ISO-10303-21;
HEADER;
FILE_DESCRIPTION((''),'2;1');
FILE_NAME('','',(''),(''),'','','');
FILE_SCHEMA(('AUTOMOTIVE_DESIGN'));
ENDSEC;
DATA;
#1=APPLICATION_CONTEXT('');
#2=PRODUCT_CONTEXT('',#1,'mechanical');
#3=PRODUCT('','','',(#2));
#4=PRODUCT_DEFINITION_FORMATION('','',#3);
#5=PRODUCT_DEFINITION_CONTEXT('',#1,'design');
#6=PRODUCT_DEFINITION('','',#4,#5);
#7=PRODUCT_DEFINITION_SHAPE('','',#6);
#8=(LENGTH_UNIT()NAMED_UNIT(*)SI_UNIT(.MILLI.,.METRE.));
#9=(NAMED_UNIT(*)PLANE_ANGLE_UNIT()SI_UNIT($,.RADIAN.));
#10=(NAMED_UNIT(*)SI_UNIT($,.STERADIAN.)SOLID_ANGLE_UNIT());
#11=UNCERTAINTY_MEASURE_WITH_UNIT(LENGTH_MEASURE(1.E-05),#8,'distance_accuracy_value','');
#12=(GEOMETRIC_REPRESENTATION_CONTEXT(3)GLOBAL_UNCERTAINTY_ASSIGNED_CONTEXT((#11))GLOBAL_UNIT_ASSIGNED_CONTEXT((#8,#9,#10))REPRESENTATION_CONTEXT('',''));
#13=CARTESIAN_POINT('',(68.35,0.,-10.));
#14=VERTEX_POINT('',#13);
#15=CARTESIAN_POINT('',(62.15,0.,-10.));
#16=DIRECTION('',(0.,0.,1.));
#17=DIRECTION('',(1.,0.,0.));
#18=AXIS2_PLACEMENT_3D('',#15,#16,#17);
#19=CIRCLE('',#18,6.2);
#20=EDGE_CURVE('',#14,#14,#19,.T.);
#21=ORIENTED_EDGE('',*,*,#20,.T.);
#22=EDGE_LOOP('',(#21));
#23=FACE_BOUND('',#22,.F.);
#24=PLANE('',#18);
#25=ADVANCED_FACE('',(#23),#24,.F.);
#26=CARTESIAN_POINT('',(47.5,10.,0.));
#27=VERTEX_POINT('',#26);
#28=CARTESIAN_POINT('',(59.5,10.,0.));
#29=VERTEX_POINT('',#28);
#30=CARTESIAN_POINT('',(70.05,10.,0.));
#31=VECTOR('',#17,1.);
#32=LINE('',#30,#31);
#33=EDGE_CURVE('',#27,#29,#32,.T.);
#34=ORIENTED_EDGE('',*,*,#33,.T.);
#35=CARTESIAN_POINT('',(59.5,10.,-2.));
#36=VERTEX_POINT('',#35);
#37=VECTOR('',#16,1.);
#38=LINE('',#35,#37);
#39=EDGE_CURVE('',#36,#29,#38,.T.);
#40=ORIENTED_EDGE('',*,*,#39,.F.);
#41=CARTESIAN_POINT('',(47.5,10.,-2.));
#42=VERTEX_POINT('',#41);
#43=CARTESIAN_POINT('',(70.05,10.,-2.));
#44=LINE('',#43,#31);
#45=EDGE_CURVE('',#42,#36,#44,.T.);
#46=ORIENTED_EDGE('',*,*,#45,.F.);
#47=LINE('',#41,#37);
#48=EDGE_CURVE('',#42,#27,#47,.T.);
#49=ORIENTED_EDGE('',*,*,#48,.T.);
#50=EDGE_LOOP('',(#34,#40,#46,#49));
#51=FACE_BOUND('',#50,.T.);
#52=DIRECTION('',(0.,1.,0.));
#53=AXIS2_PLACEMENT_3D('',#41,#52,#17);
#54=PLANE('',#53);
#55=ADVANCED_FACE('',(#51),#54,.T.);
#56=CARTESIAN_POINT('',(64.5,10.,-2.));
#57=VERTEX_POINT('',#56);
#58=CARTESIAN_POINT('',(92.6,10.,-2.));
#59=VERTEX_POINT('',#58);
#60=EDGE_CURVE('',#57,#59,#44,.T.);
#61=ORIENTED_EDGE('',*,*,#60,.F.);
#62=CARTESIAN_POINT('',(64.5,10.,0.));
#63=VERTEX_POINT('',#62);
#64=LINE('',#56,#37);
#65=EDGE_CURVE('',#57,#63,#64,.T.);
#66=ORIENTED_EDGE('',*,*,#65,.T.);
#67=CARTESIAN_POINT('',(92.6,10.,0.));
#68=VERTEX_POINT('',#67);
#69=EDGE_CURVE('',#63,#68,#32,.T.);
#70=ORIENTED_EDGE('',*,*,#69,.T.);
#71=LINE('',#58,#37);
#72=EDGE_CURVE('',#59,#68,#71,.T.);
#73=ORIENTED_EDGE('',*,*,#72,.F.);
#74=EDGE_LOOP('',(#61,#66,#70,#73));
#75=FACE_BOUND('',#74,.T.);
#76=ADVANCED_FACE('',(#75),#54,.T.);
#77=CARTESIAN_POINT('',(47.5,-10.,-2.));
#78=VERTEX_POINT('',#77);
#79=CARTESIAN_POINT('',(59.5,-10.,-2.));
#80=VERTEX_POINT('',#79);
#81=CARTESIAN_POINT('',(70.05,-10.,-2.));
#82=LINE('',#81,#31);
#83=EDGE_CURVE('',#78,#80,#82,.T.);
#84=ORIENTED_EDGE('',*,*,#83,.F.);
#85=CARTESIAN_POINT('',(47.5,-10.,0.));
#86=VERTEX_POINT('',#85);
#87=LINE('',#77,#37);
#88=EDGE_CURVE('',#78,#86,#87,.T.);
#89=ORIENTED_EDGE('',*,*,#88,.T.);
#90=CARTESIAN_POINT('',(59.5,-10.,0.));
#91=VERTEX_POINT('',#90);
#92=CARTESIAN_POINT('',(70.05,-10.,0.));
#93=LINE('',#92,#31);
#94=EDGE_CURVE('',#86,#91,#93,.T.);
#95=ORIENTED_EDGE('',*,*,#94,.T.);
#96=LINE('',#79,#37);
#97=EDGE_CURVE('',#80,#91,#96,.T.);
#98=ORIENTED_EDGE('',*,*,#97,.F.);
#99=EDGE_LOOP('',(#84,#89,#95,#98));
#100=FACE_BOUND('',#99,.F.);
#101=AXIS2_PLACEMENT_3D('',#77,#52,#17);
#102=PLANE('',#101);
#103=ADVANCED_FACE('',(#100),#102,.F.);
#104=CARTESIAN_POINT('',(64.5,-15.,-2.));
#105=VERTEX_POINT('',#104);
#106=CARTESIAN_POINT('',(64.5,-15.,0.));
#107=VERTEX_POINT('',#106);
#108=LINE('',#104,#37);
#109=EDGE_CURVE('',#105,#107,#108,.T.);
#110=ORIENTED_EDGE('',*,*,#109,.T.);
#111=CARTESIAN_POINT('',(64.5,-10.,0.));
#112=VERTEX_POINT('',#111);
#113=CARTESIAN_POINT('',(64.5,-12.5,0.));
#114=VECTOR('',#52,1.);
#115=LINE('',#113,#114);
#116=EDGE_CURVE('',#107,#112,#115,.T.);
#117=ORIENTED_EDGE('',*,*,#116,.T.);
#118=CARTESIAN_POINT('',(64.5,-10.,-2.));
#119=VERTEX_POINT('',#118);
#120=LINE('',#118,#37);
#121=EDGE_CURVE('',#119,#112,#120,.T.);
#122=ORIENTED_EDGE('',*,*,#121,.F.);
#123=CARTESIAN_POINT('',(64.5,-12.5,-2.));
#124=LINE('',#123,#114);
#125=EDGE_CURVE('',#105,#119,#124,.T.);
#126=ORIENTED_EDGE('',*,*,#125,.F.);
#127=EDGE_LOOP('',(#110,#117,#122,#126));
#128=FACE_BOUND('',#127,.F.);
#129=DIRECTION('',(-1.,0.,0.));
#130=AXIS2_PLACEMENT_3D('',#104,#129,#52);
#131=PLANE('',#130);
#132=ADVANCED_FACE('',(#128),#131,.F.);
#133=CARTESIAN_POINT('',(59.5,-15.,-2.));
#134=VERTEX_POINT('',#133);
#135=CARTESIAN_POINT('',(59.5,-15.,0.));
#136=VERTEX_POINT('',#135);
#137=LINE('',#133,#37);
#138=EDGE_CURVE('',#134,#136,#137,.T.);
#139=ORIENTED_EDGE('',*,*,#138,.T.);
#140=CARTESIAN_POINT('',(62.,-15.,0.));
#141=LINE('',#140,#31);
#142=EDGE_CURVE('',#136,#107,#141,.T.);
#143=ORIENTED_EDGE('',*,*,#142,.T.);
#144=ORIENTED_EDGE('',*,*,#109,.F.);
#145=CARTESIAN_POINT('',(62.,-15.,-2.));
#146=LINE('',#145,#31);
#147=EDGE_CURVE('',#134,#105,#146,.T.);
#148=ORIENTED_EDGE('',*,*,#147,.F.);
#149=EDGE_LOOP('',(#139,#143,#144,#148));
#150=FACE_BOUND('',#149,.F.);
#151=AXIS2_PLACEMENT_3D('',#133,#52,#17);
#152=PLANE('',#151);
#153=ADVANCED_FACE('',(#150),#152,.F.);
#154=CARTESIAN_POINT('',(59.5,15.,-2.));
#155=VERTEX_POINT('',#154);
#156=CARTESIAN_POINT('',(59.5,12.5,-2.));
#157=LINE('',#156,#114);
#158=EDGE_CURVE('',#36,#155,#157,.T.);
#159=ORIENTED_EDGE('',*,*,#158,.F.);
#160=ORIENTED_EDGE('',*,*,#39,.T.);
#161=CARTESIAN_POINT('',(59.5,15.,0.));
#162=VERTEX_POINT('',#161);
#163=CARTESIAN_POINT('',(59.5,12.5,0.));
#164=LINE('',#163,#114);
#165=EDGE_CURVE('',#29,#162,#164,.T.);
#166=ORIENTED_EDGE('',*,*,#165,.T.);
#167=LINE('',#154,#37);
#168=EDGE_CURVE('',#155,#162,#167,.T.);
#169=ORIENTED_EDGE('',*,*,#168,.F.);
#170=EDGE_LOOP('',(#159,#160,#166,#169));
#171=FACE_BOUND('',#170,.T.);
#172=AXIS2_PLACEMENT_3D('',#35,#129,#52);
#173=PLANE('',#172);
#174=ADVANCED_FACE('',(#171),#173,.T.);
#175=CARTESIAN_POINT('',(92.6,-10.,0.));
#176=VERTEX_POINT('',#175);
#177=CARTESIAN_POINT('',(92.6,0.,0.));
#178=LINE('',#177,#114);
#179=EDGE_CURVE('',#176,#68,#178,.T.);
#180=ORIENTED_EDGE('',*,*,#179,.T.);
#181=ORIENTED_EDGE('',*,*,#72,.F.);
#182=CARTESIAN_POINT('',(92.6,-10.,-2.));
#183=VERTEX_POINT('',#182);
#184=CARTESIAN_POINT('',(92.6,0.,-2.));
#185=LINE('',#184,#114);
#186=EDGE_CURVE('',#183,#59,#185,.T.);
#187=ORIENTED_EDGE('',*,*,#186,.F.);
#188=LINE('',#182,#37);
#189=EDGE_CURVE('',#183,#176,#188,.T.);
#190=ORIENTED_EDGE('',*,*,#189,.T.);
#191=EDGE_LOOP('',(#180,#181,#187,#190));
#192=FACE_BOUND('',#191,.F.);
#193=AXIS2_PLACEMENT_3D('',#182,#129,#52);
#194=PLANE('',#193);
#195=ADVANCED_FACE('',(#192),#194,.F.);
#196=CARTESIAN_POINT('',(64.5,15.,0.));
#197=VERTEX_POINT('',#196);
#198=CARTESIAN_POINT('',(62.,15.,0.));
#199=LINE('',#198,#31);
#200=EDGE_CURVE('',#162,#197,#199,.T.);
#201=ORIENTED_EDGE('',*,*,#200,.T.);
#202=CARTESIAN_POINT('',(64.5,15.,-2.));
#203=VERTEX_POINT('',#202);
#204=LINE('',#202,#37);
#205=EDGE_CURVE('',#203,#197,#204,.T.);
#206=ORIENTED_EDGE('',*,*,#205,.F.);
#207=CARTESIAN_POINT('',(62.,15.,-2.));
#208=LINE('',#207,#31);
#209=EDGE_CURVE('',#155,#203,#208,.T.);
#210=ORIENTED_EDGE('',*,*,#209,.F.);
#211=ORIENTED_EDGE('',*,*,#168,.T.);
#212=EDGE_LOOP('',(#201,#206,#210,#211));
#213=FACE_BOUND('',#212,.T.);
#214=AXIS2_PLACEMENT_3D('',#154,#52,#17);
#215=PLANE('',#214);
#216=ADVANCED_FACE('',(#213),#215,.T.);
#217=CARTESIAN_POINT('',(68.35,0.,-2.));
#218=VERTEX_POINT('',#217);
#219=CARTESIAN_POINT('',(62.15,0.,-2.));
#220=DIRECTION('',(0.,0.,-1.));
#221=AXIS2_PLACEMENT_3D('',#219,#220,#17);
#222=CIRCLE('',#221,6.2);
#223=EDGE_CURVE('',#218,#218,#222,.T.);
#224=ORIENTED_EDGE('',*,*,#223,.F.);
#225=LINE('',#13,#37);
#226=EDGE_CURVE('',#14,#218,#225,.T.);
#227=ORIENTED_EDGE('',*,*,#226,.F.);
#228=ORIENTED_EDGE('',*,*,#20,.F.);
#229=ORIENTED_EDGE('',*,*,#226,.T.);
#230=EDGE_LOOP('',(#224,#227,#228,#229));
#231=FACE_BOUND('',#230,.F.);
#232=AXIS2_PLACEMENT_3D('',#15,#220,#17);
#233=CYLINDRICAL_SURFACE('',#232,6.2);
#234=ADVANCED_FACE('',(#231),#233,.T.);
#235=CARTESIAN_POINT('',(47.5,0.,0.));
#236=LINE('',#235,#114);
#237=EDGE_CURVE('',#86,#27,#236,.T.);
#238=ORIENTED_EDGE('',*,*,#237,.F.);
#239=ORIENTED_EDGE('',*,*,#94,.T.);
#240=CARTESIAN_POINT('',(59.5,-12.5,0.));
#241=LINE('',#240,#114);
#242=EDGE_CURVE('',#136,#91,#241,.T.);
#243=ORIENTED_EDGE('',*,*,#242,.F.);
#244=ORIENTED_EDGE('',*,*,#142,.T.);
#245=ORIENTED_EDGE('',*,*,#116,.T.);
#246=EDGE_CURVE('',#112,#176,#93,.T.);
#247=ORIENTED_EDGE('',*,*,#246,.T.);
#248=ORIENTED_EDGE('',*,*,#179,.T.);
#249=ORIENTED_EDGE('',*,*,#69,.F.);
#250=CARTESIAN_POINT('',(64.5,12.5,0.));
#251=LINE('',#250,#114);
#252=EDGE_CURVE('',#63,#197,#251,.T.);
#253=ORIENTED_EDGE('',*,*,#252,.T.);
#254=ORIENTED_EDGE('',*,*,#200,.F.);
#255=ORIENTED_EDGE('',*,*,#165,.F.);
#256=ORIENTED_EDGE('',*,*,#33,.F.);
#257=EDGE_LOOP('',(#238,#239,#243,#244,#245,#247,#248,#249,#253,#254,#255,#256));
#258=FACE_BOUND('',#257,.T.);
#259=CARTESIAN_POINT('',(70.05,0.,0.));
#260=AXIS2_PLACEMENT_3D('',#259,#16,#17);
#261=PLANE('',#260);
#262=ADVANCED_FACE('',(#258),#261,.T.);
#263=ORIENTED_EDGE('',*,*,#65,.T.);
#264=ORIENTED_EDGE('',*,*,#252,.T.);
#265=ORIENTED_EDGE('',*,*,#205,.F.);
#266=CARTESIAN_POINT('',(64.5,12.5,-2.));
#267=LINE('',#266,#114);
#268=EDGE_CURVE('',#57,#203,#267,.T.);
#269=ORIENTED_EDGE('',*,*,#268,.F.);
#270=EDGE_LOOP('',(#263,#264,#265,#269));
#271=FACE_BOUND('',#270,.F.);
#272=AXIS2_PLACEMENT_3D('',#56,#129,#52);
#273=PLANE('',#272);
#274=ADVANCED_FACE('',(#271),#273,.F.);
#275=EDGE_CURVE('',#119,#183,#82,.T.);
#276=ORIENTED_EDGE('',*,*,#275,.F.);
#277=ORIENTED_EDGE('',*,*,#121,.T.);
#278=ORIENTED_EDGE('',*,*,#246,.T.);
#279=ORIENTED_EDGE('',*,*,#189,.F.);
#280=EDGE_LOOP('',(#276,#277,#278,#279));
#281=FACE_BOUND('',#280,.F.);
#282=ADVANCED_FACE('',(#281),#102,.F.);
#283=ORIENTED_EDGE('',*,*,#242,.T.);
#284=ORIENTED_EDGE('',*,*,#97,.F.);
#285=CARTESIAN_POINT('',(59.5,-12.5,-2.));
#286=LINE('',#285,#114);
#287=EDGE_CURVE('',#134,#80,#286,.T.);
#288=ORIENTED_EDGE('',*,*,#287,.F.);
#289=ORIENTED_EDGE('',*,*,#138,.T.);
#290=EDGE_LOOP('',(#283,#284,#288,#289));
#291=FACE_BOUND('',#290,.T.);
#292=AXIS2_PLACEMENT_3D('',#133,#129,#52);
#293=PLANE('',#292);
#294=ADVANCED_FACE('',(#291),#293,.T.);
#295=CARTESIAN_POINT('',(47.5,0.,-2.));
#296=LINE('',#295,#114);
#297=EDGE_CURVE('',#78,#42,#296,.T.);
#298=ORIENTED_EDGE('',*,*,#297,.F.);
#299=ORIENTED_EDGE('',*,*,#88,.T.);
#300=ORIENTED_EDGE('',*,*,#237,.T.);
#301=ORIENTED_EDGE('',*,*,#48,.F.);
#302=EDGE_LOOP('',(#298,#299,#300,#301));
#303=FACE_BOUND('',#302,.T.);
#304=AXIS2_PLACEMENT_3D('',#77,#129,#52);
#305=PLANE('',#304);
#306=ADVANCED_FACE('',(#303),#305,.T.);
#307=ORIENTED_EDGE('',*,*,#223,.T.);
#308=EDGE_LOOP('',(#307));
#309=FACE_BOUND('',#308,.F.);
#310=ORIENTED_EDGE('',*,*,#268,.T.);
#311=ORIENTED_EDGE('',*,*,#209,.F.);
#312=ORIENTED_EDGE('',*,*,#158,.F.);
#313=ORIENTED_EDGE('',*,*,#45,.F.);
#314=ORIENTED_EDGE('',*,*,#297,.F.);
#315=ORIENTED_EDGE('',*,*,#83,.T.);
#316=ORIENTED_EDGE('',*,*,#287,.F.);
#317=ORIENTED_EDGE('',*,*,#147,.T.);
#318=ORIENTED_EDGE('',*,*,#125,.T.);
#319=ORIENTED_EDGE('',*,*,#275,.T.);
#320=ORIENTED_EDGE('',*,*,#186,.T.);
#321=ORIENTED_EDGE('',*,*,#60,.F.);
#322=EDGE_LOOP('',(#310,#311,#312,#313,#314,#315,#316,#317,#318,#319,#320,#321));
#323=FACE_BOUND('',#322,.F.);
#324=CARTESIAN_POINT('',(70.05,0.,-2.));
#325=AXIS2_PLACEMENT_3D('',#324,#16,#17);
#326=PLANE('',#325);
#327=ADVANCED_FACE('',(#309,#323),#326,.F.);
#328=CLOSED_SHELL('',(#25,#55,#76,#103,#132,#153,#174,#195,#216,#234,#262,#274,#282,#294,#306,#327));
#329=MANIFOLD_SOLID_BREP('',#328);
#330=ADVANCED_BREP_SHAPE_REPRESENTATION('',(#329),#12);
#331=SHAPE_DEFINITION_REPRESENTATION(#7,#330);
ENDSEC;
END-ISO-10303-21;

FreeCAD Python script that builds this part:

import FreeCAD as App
import Part
import Sketcher

V = App.Vector
Q = App.Units.Quantity


def add_polygon(sketch, points):
    """Adds a closed chain of lines whose ends are joined by coincident constraints."""
    first, n = sketch.GeometryCount, len(points)
    for a, b in zip(points, points[1:] + points[:1]):
        sketch.addGeometry(Part.LineSegment(App.Vector(*a, 0), App.Vector(*b, 0)), False)
    for i in range(n):
        sketch.addConstraint(Sketcher.Constraint("Coincident", first + i, 2, first + (i + 1) % n, 1))

doc = App.newDocument("Part")
body = doc.addObject("PartDesign::Body", "Body")

# Sketch on XY plane
sketch1 = body.newObject("Sketcher::SketchObject", "Sketch")
sketch1.AttachmentSupport = (doc.getObject("XY_Plane"), [""])
sketch1.MapMode = "FlatFace"
sketch1.AttachmentOffset = App.Placement(V(0, 0, -10), App.Rotation())
sketch1.addGeometry(Part.Circle(V(62, 0, 0), V(0, 0, 1), 6), False)
sketch1.addConstraint(Sketcher.Constraint("PointOnObject", 0, 3, -1))
sketch1.addConstraint(Sketcher.Constraint("Diameter", 0, Q("12.4 mm")))
sketch1.addConstraint(Sketcher.Constraint("DistanceX", -1, 1, 0, 3, Q("62.15 mm")))
pad1 = body.newObject("PartDesign::Pad", "Pad")
pad1.Profile = sketch1
pad1.Length = 10
body2 = doc.addObject("PartDesign::Body", "Body001")

# Sketch on XY plane
sketch2 = body2.newObject("Sketcher::SketchObject", "Sketch001")
sketch2.AttachmentSupport = (doc.getObject("XY_Plane001"), [""])
sketch2.MapMode = "FlatFace"
sketch2.AttachmentOffset = App.Placement(V(0, 0, -2), App.Rotation())
add_polygon(sketch2, [(48, 10), (48, -10), (93, -10), (93, 10)])  # lines 0-3
sketch2.addConstraint(Sketcher.Constraint("Vertical", 0))
sketch2.addConstraint(Sketcher.Constraint("Horizontal", 1))
sketch2.addConstraint(Sketcher.Constraint("Vertical", 2))
sketch2.addConstraint(Sketcher.Constraint("Horizontal", 3))
sketch2.addConstraint(Sketcher.Constraint("DistanceY", 0, 2, 0, 1, Q("20 mm")))
sketch2.addConstraint(Sketcher.Constraint("DistanceX", 1, 1, 1, 2, Q("45.1 mm")))
sketch2.addConstraint(Sketcher.Constraint("DistanceY", 0, 2, -1, 1, Q("10 mm")))
sketch2.addConstraint(Sketcher.Constraint("DistanceX", -1, 1, 0, 2, Q("47.5 mm")))
pad2 = body2.newObject("PartDesign::Pad", "Pad001")
pad2.Profile = sketch2
pad2.Length = 2
body3 = doc.addObject("PartDesign::Body", "Body002")

# Sketch on XY plane
sketch3 = body3.newObject("Sketcher::SketchObject", "Sketch002")
sketch3.AttachmentSupport = (doc.getObject("XY_Plane002"), [""])
sketch3.MapMode = "FlatFace"
sketch3.AttachmentOffset = App.Placement(V(0, 0, -2), App.Rotation())
add_polygon(sketch3, [(60, 15), (60, 10), (64, 10), (64, 15)])  # lines 0-3
sketch3.addConstraint(Sketcher.Constraint("Vertical", 0))
sketch3.addConstraint(Sketcher.Constraint("Horizontal", 1))
sketch3.addConstraint(Sketcher.Constraint("Vertical", 2))
sketch3.addConstraint(Sketcher.Constraint("Horizontal", 3))
sketch3.addConstraint(Sketcher.Constraint("Equal", 3, 0))
sketch3.addConstraint(Sketcher.Constraint("DistanceX", 1, 1, 1, 2, Q("5 mm")))
sketch3.addConstraint(Sketcher.Constraint("DistanceY", -1, 1, 0, 2, Q("10 mm")))
sketch3.addConstraint(Sketcher.Constraint("DistanceX", -1, 1, 0, 2, Q("59.5 mm")))
pad3 = body3.newObject("PartDesign::Pad", "Pad002")
pad3.Profile = sketch3
pad3.Length = 2
body4 = doc.addObject("PartDesign::Body", "Body003")
body4.AllowCompound = True

# Sketch on XY plane
sketch4 = body4.newObject("Sketcher::SketchObject", "Sketch003")
sketch4.AttachmentSupport = (doc.getObject("XY_Plane003"), [""])
sketch4.MapMode = "FlatFace"
sketch4.AttachmentOffset = App.Placement(V(0, 0, -2), App.Rotation())
add_polygon(sketch4, [(60, -10), (60, -15), (64, -15), (64, -10)])  # lines 0-3
sketch4.addConstraint(Sketcher.Constraint("Vertical", 0))
sketch4.addConstraint(Sketcher.Constraint("Horizontal", 1))
sketch4.addConstraint(Sketcher.Constraint("Vertical", 2))
sketch4.addConstraint(Sketcher.Constraint("Horizontal", 3))
sketch4.addConstraint(Sketcher.Constraint("Equal", 3, 0))
sketch4.addConstraint(Sketcher.Constraint("DistanceX", 1, 1, 1, 2, Q("5 mm")))
sketch4.addConstraint(Sketcher.Constraint("DistanceY", 0, 2, -1, 1, Q("15 mm")))
sketch4.addConstraint(Sketcher.Constraint("DistanceX", -1, 1, 0, 2, Q("59.5 mm")))
pad4 = body4.newObject("PartDesign::Pad", "Pad003")
pad4.Profile = sketch4
pad4.Length = 2
doc.recompute()

boolean = body4.newObject("PartDesign::Boolean", "Boolean")
boolean.Type = "Fuse"
boolean.addObjects([body3])
doc.recompute()

boolean2 = body4.newObject("PartDesign::Boolean", "Boolean001")
boolean2.Type = "Fuse"
boolean2.addObjects([body2])
doc.recompute()

boolean3 = body4.newObject("PartDesign::Boolean", "Boolean002")
boolean3.Type = "Fuse"
boolean3.addObjects([body])

doc.recompute()
